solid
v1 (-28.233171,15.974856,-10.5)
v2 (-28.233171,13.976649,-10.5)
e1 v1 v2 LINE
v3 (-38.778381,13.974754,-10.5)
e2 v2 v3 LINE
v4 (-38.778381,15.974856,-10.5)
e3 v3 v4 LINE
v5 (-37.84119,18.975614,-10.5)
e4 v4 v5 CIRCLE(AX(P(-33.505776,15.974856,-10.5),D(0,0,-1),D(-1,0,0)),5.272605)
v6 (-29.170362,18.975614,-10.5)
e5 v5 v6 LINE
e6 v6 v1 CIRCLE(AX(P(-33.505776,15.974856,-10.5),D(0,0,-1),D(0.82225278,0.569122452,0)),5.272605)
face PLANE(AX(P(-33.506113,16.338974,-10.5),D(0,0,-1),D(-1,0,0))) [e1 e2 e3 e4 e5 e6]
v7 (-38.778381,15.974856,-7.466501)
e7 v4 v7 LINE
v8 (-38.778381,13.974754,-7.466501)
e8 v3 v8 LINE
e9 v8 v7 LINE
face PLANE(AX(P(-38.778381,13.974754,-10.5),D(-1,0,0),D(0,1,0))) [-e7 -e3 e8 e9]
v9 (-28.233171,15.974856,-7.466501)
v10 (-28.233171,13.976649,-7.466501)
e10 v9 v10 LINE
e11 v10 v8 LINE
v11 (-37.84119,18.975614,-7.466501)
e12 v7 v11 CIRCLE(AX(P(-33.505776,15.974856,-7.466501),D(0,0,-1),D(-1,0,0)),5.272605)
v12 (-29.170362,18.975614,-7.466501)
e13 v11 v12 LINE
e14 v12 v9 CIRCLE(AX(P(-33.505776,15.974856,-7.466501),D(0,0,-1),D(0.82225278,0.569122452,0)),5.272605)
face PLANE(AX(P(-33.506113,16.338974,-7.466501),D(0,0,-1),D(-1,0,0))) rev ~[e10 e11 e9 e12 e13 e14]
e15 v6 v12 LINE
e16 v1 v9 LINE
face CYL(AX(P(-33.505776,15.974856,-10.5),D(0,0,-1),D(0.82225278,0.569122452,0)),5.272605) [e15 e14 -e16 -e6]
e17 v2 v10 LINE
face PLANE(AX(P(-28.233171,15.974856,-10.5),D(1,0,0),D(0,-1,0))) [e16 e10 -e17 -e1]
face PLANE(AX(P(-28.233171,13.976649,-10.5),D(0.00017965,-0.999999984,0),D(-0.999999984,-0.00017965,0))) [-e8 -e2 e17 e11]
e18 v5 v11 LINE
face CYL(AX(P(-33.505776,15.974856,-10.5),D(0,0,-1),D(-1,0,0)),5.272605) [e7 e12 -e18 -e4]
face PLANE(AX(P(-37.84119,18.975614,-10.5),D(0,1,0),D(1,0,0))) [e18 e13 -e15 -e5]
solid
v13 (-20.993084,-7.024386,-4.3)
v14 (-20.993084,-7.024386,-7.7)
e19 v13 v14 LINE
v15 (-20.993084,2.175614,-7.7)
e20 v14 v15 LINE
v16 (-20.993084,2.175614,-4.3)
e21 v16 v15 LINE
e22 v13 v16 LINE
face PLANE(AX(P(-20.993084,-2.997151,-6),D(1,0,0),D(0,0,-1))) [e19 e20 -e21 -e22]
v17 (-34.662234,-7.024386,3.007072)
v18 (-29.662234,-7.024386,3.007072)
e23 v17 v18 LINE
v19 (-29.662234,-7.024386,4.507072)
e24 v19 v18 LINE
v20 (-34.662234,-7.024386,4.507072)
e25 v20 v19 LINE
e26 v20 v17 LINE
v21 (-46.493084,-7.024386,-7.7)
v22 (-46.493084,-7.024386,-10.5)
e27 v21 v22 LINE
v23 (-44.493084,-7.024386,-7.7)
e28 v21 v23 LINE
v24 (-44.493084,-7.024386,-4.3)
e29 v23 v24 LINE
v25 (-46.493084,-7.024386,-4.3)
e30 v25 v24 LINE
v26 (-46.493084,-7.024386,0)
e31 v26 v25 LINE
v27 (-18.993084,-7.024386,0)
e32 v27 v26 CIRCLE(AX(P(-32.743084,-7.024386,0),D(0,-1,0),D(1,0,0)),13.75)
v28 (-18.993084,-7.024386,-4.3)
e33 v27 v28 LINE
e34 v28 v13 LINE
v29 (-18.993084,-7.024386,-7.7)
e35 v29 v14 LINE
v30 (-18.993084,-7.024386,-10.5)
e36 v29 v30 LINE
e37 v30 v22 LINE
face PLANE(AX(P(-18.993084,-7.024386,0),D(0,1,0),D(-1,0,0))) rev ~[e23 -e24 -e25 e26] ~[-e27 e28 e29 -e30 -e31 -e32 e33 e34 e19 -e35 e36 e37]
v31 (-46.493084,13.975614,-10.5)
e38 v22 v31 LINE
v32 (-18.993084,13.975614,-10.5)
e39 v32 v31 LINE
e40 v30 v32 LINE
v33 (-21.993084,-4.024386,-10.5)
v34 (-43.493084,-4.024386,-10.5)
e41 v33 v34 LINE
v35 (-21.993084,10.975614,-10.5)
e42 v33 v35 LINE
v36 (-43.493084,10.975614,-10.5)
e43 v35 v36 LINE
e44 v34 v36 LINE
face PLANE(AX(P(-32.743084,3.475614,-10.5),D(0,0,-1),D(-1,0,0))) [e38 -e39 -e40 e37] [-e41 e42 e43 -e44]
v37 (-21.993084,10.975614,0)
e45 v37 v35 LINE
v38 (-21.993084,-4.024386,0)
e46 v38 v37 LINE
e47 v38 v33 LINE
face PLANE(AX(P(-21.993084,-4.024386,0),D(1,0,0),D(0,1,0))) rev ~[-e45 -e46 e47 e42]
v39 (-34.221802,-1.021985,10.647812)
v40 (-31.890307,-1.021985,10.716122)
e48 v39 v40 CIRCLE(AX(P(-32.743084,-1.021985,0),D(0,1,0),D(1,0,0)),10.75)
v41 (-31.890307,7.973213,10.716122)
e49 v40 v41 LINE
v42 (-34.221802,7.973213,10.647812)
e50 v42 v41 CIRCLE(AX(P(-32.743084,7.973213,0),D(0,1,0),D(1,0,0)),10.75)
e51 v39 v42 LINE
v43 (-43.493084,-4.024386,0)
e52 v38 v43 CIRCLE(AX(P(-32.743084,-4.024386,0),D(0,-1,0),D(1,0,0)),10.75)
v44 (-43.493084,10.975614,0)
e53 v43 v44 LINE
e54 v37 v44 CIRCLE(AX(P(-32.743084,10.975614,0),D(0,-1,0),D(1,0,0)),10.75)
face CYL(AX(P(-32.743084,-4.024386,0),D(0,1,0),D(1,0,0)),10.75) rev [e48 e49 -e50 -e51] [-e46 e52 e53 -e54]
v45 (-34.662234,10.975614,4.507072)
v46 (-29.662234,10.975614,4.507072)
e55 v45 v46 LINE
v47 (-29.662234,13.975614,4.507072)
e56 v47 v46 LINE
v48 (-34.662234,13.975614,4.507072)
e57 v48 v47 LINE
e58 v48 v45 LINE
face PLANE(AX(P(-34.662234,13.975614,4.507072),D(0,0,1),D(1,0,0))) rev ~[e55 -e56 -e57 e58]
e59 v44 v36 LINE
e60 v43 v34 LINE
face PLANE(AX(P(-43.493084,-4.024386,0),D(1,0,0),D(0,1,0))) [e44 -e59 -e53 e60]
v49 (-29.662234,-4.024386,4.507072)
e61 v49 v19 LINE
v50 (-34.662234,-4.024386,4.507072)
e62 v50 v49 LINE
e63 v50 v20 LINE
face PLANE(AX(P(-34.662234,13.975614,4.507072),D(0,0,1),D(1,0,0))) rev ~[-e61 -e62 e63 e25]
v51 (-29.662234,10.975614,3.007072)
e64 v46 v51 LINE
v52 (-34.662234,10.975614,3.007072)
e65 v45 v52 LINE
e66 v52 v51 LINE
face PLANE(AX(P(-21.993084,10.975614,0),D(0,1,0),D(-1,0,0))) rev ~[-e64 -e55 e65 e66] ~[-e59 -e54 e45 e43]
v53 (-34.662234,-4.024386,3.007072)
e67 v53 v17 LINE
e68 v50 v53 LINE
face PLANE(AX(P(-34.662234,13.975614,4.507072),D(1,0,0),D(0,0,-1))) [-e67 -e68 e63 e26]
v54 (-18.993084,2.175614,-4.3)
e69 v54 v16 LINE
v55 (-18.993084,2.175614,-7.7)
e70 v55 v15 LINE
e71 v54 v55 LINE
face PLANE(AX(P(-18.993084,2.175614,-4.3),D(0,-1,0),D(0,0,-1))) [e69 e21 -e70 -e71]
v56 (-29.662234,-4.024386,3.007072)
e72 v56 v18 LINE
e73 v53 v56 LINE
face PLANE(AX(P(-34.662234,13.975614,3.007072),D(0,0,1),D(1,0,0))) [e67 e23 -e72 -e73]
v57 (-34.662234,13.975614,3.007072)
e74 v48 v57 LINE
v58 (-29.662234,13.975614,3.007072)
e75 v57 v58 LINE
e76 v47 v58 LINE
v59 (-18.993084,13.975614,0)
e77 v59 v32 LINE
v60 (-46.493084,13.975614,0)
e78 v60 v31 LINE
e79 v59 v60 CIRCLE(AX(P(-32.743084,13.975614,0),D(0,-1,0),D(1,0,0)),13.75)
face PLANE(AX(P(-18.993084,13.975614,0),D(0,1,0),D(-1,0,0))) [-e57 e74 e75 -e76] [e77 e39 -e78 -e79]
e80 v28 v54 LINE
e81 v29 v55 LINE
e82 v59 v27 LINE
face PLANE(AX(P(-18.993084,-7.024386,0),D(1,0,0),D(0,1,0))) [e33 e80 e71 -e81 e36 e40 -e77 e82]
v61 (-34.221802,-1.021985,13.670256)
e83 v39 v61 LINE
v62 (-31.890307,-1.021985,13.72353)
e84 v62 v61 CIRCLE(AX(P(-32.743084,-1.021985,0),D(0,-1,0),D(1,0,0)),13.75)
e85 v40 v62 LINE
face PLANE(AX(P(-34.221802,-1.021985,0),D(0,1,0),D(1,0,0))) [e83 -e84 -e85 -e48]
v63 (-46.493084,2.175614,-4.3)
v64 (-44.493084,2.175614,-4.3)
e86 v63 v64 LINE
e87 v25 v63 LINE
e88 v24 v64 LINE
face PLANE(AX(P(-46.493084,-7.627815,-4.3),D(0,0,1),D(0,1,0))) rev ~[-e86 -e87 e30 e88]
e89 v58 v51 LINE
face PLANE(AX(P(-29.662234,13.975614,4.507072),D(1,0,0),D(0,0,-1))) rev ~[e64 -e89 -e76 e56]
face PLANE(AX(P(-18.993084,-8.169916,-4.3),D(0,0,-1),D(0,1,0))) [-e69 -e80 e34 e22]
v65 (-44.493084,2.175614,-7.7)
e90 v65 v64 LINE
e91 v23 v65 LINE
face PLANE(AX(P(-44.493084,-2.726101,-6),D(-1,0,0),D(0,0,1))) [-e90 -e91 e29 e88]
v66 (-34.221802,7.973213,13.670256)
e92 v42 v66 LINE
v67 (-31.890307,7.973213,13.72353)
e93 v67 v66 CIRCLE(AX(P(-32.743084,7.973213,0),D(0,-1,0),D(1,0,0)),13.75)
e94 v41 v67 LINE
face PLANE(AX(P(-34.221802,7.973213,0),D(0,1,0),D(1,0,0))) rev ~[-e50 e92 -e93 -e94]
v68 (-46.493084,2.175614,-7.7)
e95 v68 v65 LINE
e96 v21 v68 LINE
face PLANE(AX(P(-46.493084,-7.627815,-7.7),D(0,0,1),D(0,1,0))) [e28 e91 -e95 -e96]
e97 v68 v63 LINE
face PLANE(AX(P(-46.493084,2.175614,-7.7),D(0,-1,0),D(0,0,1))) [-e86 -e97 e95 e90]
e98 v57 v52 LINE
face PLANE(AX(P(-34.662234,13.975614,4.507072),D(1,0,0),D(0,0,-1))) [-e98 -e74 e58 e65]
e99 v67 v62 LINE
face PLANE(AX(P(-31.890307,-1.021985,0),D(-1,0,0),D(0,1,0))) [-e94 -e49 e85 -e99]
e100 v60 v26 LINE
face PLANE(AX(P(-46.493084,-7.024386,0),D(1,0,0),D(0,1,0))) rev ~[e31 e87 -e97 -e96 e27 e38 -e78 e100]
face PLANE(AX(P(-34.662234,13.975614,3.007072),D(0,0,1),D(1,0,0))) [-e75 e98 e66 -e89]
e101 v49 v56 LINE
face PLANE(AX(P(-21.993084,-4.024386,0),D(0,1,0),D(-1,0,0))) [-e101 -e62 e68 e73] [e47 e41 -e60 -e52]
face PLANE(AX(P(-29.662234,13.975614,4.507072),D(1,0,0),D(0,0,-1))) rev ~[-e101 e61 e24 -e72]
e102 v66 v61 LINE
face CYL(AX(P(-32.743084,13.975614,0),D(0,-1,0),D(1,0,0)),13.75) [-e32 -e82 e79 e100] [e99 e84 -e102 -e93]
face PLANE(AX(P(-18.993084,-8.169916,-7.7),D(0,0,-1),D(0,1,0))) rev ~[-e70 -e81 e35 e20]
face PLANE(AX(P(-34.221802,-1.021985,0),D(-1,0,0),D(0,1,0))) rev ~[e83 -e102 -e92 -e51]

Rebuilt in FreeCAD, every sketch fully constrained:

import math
import FreeCAD as App
import Part
import Sketcher
from FreeCAD import Vector
Q = App.Units.Quantity

doc = App.newDocument("Part")
body = doc.addObject("PartDesign::Body", "Body")

sketch1 = body.newObject("Sketcher::SketchObject", "Sketch")
sketch1.AttachmentSupport = (doc.getObject("XY_Plane"), [""])
sketch1.MapMode = "FlatFace"
sketch1.addGeometry(Part.LineSegment(Vector(-19, 14, 0), Vector(-32.7, 14, 0)), False)
sketch1.addGeometry(Part.LineSegment(Vector(-32.7, 14, 0), Vector(-32.7, 11, 0)), False)
sketch1.addGeometry(Part.LineSegment(Vector(-32.7, 11, 0), Vector(-22, 11, 0)), False)
sketch1.addGeometry(Part.LineSegment(Vector(-22, 11, 0), Vector(-22, -4, 0)), False)
sketch1.addGeometry(Part.LineSegment(Vector(-22, -4, 0), Vector(-32.7, -4, 0)), False)
sketch1.addGeometry(Part.LineSegment(Vector(-32.7, -4, 0), Vector(-32.7, -7, 0)), False)
sketch1.addGeometry(Part.LineSegment(Vector(-32.7, -7, 0), Vector(-19, -7, 0)), False)
sketch1.addGeometry(Part.LineSegment(Vector(-19, -7, 0), Vector(-19, 14, 0)), False)
sketch1.addGeometry(Part.LineSegment(Vector(-32.7, 14, 0), Vector(-32.7, -7, 0)), True)
sketch1.addConstraint(Sketcher.Constraint("Coincident", 0, 2, 1, 1))
sketch1.addConstraint(Sketcher.Constraint("Coincident", 1, 2, 2, 1))
sketch1.addConstraint(Sketcher.Constraint("Coincident", 2, 2, 3, 1))
sketch1.addConstraint(Sketcher.Constraint("Coincident", 3, 2, 4, 1))
sketch1.addConstraint(Sketcher.Constraint("Coincident", 4, 2, 5, 1))
sketch1.addConstraint(Sketcher.Constraint("Coincident", 5, 2, 6, 1))
sketch1.addConstraint(Sketcher.Constraint("Coincident", 6, 2, 7, 1))
sketch1.addConstraint(Sketcher.Constraint("Coincident", 7, 2, 0, 1))
sketch1.addConstraint(Sketcher.Constraint("Horizontal", 0))
sketch1.addConstraint(Sketcher.Constraint("Vertical", 1))
sketch1.addConstraint(Sketcher.Constraint("Horizontal", 2))
sketch1.addConstraint(Sketcher.Constraint("Vertical", 3))
sketch1.addConstraint(Sketcher.Constraint("Horizontal", 4))
sketch1.addConstraint(Sketcher.Constraint("Vertical", 5))
sketch1.addConstraint(Sketcher.Constraint("Horizontal", 6))
sketch1.addConstraint(Sketcher.Constraint("Vertical", 7))
sketch1.addConstraint(Sketcher.Constraint("Vertical", 8))
sketch1.addConstraint(Sketcher.Constraint("Coincident", 8, 1, 0, 2))
sketch1.addConstraint(Sketcher.Constraint("Coincident", 8, 2, 5, 2))
sketch1.addConstraint(Sketcher.Constraint("Equal", 1, 5))
sketch1.addConstraint(Sketcher.Constraint("DistanceY", 1, 2, 1, 1, Q("3 mm")))
sketch1.addConstraint(Sketcher.Constraint("DistanceY", 3, 2, 3, 1, Q("15 mm")))
sketch1.addConstraint(Sketcher.Constraint("DistanceX", 3, 2, 6, 2, Q("3 mm")))
sketch1.addConstraint(Sketcher.Constraint("DistanceX", 0, 2, 0, 1, Q("13.75 mm")))
sketch1.addConstraint(Sketcher.Constraint("DistanceX", 0, 2, -1, 1, Q("32.743084 mm")))
sketch1.addConstraint(Sketcher.Constraint("DistanceY", -1, 1, 0, 2, Q("13.975614 mm")))
revolution = body.newObject("PartDesign::Revolution", "Revolution")
revolution.Profile = sketch1
revolution.ReferenceAxis = (sketch1, ["Axis0"])
revolution.Angle = 180

sketch2 = body.newObject("Sketcher::SketchObject", "Sketch001")
sketch2.AttachmentSupport = (doc.getObject("XY_Plane"), [""])
sketch2.MapMode = "FlatFace"
sketch2.addGeometry(Part.LineSegment(Vector(-19, 14, 0), Vector(-19, -7, 0)), False)
sketch2.addGeometry(Part.LineSegment(Vector(-19, -7, 0), Vector(-46, -7, 0)), False)
sketch2.addGeometry(Part.LineSegment(Vector(-46, -7, 0), Vector(-46, 14, 0)), False)
sketch2.addGeometry(Part.LineSegment(Vector(-46, 14, 0), Vector(-19, 14, 0)), False)
sketch2.addGeometry(Part.LineSegment(Vector(-43, -4, 0), Vector(-22, -4, 0)), False)
sketch2.addGeometry(Part.LineSegment(Vector(-22, -4, 0), Vector(-22, 11, 0)), False)
sketch2.addGeometry(Part.LineSegment(Vector(-22, 11, 0), Vector(-43, 11, 0)), False)
sketch2.addGeometry(Part.LineSegment(Vector(-43, 11, 0), Vector(-43, -4, 0)), False)
sketch2.addConstraint(Sketcher.Constraint("Coincident", 0, 2, 1, 1))
sketch2.addConstraint(Sketcher.Constraint("Coincident", 1, 2, 2, 1))
sketch2.addConstraint(Sketcher.Constraint("Coincident", 2, 2, 3, 1))
sketch2.addConstraint(Sketcher.Constraint("Coincident", 3, 2, 0, 1))
sketch2.addConstraint(Sketcher.Constraint("Coincident", 4, 2, 5, 1))
sketch2.addConstraint(Sketcher.Constraint("Coincident", 5, 2, 6, 1))
sketch2.addConstraint(Sketcher.Constraint("Coincident", 6, 2, 7, 1))
sketch2.addConstraint(Sketcher.Constraint("Coincident", 7, 2, 4, 1))
sketch2.addConstraint(Sketcher.Constraint("Vertical", 0))
sketch2.addConstraint(Sketcher.Constraint("Horizontal", 1))
sketch2.addConstraint(Sketcher.Constraint("Vertical", 2))
sketch2.addConstraint(Sketcher.Constraint("Horizontal", 3))
sketch2.addConstraint(Sketcher.Constraint("Horizontal", 4))
sketch2.addConstraint(Sketcher.Constraint("Vertical", 5))
sketch2.addConstraint(Sketcher.Constraint("Horizontal", 6))
sketch2.addConstraint(Sketcher.Constraint("Vertical", 7))
sketch2.addConstraint(Sketcher.Constraint("DistanceY", 0, 2, 0, 1, Q("21 mm")))
sketch2.addConstraint(Sketcher.Constraint("DistanceY", 5, 1, 5, 2, Q("15 mm")))
sketch2.addConstraint(Sketcher.Constraint("DistanceX", 1, 2, 1, 1, Q("27.5 mm")))
sketch2.addConstraint(Sketcher.Constraint("DistanceX", 4, 1, 4, 2, Q("21.5 mm")))
sketch2.addConstraint(Sketcher.Constraint("DistanceX", 4, 2, 0, 2, Q("3 mm")))
sketch2.addConstraint(Sketcher.Constraint("DistanceY", 0, 2, 4, 2, Q("3 mm")))
sketch2.addConstraint(Sketcher.Constraint("DistanceX", 0, 2, -1, 1, Q("18.993084 mm")))
sketch2.addConstraint(Sketcher.Constraint("DistanceY", 0, 2, -1, 1, Q("7.024386 mm")))
pad1 = body.newObject("PartDesign::Pad", "Pad")
pad1.Profile = sketch2
pad1.Length = 10.5
pad1.Reversed = True

sketch3 = body.newObject("Sketcher::SketchObject", "Sketch002")
sketch3.AttachmentSupport = (doc.getObject("XY_Plane"), [""])
sketch3.MapMode = "FlatFace"
sketch3.addGeometry(Part.LineSegment(Vector(-34.2, 8, 0), Vector(-34.2, -1, 0)), False)
sketch3.addGeometry(Part.LineSegment(Vector(-34.2, -1, 0), Vector(-31.9, -1, 0)), False)
sketch3.addGeometry(Part.LineSegment(Vector(-31.9, -1, 0), Vector(-31.9, 8, 0)), False)
sketch3.addGeometry(Part.LineSegment(Vector(-31.9, 8, 0), Vector(-34.2, 8, 0)), False)
sketch3.addConstraint(Sketcher.Constraint("Coincident", 0, 2, 1, 1))
sketch3.addConstraint(Sketcher.Constraint("Coincident", 1, 2, 2, 1))
sketch3.addConstraint(Sketcher.Constraint("Coincident", 2, 2, 3, 1))
sketch3.addConstraint(Sketcher.Constraint("Coincident", 3, 2, 0, 1))
sketch3.addConstraint(Sketcher.Constraint("Vertical", 0))
sketch3.addConstraint(Sketcher.Constraint("Horizontal", 1))
sketch3.addConstraint(Sketcher.Constraint("Vertical", 2))
sketch3.addConstraint(Sketcher.Constraint("Horizontal", 3))
sketch3.addConstraint(Sketcher.Constraint("DistanceY", 0, 2, 0, 1, Q("8.995198 mm")))
sketch3.addConstraint(Sketcher.Constraint("DistanceX", 1, 1, 1, 2, Q("2.331495 mm")))
sketch3.addConstraint(Sketcher.Constraint("DistanceX", 0, 2, -1, 1, Q("34.221802 mm")))
sketch3.addConstraint(Sketcher.Constraint("DistanceY", 0, 2, -1, 1, Q("1.021985 mm")))
pocket1 = body.newObject("PartDesign::Pocket", "Pocket")
pocket1.Profile = sketch3
pocket1.Type = "ThroughAll"
pocket1.Reversed = True

sketch4 = body.newObject("Sketcher::SketchObject", "Sketch003")
sketch4.AttachmentSupport = (doc.getObject("XZ_Plane"), [""])
sketch4.MapMode = "FlatFace"
sketch4.AttachmentOffset = App.Placement(Vector(0, 0, -13.975614), App.Rotation())
sketch4.addGeometry(Part.LineSegment(Vector(-34.7, 3, 0), Vector(-34.7, 4.5, 0)), False)
sketch4.addGeometry(Part.LineSegment(Vector(-34.7, 4.5, 0), Vector(-29.7, 4.5, 0)), False)
sketch4.addGeometry(Part.LineSegment(Vector(-29.7, 4.5, 0), Vector(-29.7, 3, 0)), False)
sketch4.addGeometry(Part.LineSegment(Vector(-29.7, 3, 0), Vector(-34.7, 3, 0)), False)
sketch4.addConstraint(Sketcher.Constraint("Coincident", 0, 2, 1, 1))
sketch4.addConstraint(Sketcher.Constraint("Coincident", 1, 2, 2, 1))
sketch4.addConstraint(Sketcher.Constraint("Coincident", 2, 2, 3, 1))
sketch4.addConstraint(Sketcher.Constraint("Coincident", 3, 2, 0, 1))
sketch4.addConstraint(Sketcher.Constraint("Vertical", 0))
sketch4.addConstraint(Sketcher.Constraint("Horizontal", 1))
sketch4.addConstraint(Sketcher.Constraint("Vertical", 2))
sketch4.addConstraint(Sketcher.Constraint("Horizontal", 3))
sketch4.addConstraint(Sketcher.Constraint("DistanceX", 1, 1, 1, 2, Q("5 mm")))
sketch4.addConstraint(Sketcher.Constraint("DistanceY", 0, 1, 0, 2, Q("1.5 mm")))
sketch4.addConstraint(Sketcher.Constraint("DistanceY", -1, 1, 0, 2, Q("4.507072 mm")))
sketch4.addConstraint(Sketcher.Constraint("DistanceX", 0, 2, -1, 1, Q("34.662234 mm")))
pocket2 = body.newObject("PartDesign::Pocket", "Pocket001")
pocket2.Profile = sketch4
pocket2.Type = "ThroughAll"
pocket2.Reversed = True

sketch5 = body.newObject("Sketcher::SketchObject", "Sketch004")
sketch5.AttachmentSupport = (doc.getObject("YZ_Plane"), [""])
sketch5.MapMode = "FlatFace"
sketch5.AttachmentOffset = App.Placement(Vector(0, 0, -46.493084), App.Rotation())
sketch5.addGeometry(Part.LineSegment(Vector(2.2, -7.7, 0), Vector(-7.6, -7.7, 0)), False)
sketch5.addGeometry(Part.LineSegment(Vector(-7.6, -7.7, 0), Vector(-7.6, -4.3, 0)), False)
sketch5.addGeometry(Part.LineSegment(Vector(-7.6, -4.3, 0), Vector(2.2, -4.3, 0)), False)
sketch5.addGeometry(Part.LineSegment(Vector(2.2, -4.3, 0), Vector(2.2, -7.7, 0)), False)
sketch5.addConstraint(Sketcher.Constraint("Coincident", 0, 2, 1, 1))
sketch5.addConstraint(Sketcher.Constraint("Coincident", 1, 2, 2, 1))
sketch5.addConstraint(Sketcher.Constraint("Coincident", 2, 2, 3, 1))
sketch5.addConstraint(Sketcher.Constraint("Coincident", 3, 2, 0, 1))
sketch5.addConstraint(Sketcher.Constraint("Horizontal", 0))
sketch5.addConstraint(Sketcher.Constraint("Vertical", 1))
sketch5.addConstraint(Sketcher.Constraint("Horizontal", 2))
sketch5.addConstraint(Sketcher.Constraint("Vertical", 3))
sketch5.addConstraint(Sketcher.Constraint("DistanceY", 1, 1, 1, 2, Q("3.4 mm")))
sketch5.addConstraint(Sketcher.Constraint("DistanceY", 0, 2, -1, 1, Q("7.7 mm")))
sketch5.addConstraint(Sketcher.Constraint("DistanceX", 0, 2, 0, 1, Q("9.803429 mm")))
sketch5.addConstraint(Sketcher.Constraint("DistanceX", 0, 2, -1, 1, Q("7.627815 mm")))
pocket3 = body.newObject("PartDesign::Pocket", "Pocket002")
pocket3.Profile = sketch5
pocket3.Length = 2
pocket3.Reversed = True

sketch6 = body.newObject("Sketcher::SketchObject", "Sketch005")
sketch6.AttachmentSupport = (doc.getObject("YZ_Plane"), [""])
sketch6.MapMode = "FlatFace"
sketch6.AttachmentOffset = App.Placement(Vector(0, 0, -18.993084), App.Rotation())
sketch6.addGeometry(Part.LineSegment(Vector(2.2, -4.3, 0), Vector(-8.2, -4.3, 0)), False)
sketch6.addGeometry(Part.LineSegment(Vector(-8.2, -4.3, 0), Vector(-8.2, -7.7, 0)), False)
sketch6.addGeometry(Part.LineSegment(Vector(-8.2, -7.7, 0), Vector(2.2, -7.7, 0)), False)
sketch6.addGeometry(Part.LineSegment(Vector(2.2, -7.7, 0), Vector(2.2, -4.3, 0)), False)
sketch6.addConstraint(Sketcher.Constraint("Coincident", 0, 2, 1, 1))
sketch6.addConstraint(Sketcher.Constraint("Coincident", 1, 2, 2, 1))
sketch6.addConstraint(Sketcher.Constraint("Coincident", 2, 2, 3, 1))
sketch6.addConstraint(Sketcher.Constraint("Coincident", 3, 2, 0, 1))
sketch6.addConstraint(Sketcher.Constraint("Horizontal", 0))
sketch6.addConstraint(Sketcher.Constraint("Vertical", 1))
sketch6.addConstraint(Sketcher.Constraint("Horizontal", 2))
sketch6.addConstraint(Sketcher.Constraint("Vertical", 3))
sketch6.addConstraint(Sketcher.Constraint("DistanceY", 1, 2, 1, 1, Q("3.4 mm")))
sketch6.addConstraint(Sketcher.Constraint("DistanceY", 0, 2, -1, 1, Q("4.3 mm")))
sketch6.addConstraint(Sketcher.Constraint("DistanceX", 0, 2, 0, 1, Q("10.34553 mm")))
sketch6.addConstraint(Sketcher.Constraint("DistanceX", 0, 2, -1, 1, Q("8.169916 mm")))
pocket4 = body.newObject("PartDesign::Pocket", "Pocket003")
pocket4.Profile = sketch6
pocket4.Length = 2
body2 = doc.addObject("PartDesign::Body", "Body001")

sketch7 = body2.newObject("Sketcher::SketchObject", "Sketch006")
sketch7.AttachmentSupport = (doc.getObject("XY_Plane001"), [""])
sketch7.MapMode = "FlatFace"
sketch7.AttachmentOffset = App.Placement(Vector(0, 0, -10.5), App.Rotation())
sketch7.addGeometry(Part.LineSegment(Vector(-28.2, 16, 0), Vector(-28.2, 14, 0)), False)
sketch7.addGeometry(Part.LineSegment(Vector(-28.2, 14, 0), Vector(-38.8, 14, 0)), False)
sketch7.addGeometry(Part.LineSegment(Vector(-38.8, 14, 0), Vector(-38.8, 16, 0)), False)
sketch7.addGeometry(Part.ArcOfCircle(Part.Circle(Vector(-33.5, 16, 0), Vector(0, 0, 1), 5.3), math.radians(145), math.radians(180)), False)
sketch7.addGeometry(Part.LineSegment(Vector(-37.8, 19, 0), Vector(-29.2, 19, 0)), False)
sketch7.addGeometry(Part.ArcOfCircle(Part.Circle(Vector(-33.5, 16, 0), Vector(0, 0, 1), 5.3), math.radians(0), math.radians(35)), False)
sketch7.addConstraint(Sketcher.Constraint("Coincident", 0, 2, 1, 1))
sketch7.addConstraint(Sketcher.Constraint("Coincident", 1, 2, 2, 1))
sketch7.addConstraint(Sketcher.Constraint("Tangent", 2, 2, 3, 2))
sketch7.addConstraint(Sketcher.Constraint("Coincident", 3, 1, 4, 1))
sketch7.addConstraint(Sketcher.Constraint("Coincident", 4, 2, 5, 2))
sketch7.addConstraint(Sketcher.Constraint("Tangent", 5, 1, 0, 1))
sketch7.addConstraint(Sketcher.Constraint("Vertical", 0))
sketch7.addConstraint(Sketcher.Constraint("Vertical", 2))
sketch7.addConstraint(Sketcher.Constraint("Horizontal", 4))
sketch7.addConstraint(Sketcher.Constraint("Coincident", 5, 3, 3, 3))
sketch7.addConstraint(Sketcher.Constraint("Equal", 3, 5))
sketch7.addConstraint(Sketcher.Constraint("DistanceY", 2, 1, 2, 2, Q("2.000102 mm")))
sketch7.addConstraint(Sketcher.Constraint("Radius", 3, Q("5.272605 mm")))
sketch7.addConstraint(Sketcher.Constraint("DistanceX", 4, 1, 4, 2, Q("8.670828 mm")))
sketch7.addConstraint(Sketcher.Constraint("DistanceY", 0, 2, 0, 1, Q("1.998207 mm")))
sketch7.addConstraint(Sketcher.Constraint("DistanceX", 0, 2, -1, 1, Q("28.233171 mm")))
sketch7.addConstraint(Sketcher.Constraint("DistanceY", -1, 1, 0, 2, Q("13.976649 mm")))
pad2 = body2.newObject("PartDesign::Pad", "Pad001")
pad2.Profile = sketch7
pad2.Length = 3.033499

doc.recompute()
